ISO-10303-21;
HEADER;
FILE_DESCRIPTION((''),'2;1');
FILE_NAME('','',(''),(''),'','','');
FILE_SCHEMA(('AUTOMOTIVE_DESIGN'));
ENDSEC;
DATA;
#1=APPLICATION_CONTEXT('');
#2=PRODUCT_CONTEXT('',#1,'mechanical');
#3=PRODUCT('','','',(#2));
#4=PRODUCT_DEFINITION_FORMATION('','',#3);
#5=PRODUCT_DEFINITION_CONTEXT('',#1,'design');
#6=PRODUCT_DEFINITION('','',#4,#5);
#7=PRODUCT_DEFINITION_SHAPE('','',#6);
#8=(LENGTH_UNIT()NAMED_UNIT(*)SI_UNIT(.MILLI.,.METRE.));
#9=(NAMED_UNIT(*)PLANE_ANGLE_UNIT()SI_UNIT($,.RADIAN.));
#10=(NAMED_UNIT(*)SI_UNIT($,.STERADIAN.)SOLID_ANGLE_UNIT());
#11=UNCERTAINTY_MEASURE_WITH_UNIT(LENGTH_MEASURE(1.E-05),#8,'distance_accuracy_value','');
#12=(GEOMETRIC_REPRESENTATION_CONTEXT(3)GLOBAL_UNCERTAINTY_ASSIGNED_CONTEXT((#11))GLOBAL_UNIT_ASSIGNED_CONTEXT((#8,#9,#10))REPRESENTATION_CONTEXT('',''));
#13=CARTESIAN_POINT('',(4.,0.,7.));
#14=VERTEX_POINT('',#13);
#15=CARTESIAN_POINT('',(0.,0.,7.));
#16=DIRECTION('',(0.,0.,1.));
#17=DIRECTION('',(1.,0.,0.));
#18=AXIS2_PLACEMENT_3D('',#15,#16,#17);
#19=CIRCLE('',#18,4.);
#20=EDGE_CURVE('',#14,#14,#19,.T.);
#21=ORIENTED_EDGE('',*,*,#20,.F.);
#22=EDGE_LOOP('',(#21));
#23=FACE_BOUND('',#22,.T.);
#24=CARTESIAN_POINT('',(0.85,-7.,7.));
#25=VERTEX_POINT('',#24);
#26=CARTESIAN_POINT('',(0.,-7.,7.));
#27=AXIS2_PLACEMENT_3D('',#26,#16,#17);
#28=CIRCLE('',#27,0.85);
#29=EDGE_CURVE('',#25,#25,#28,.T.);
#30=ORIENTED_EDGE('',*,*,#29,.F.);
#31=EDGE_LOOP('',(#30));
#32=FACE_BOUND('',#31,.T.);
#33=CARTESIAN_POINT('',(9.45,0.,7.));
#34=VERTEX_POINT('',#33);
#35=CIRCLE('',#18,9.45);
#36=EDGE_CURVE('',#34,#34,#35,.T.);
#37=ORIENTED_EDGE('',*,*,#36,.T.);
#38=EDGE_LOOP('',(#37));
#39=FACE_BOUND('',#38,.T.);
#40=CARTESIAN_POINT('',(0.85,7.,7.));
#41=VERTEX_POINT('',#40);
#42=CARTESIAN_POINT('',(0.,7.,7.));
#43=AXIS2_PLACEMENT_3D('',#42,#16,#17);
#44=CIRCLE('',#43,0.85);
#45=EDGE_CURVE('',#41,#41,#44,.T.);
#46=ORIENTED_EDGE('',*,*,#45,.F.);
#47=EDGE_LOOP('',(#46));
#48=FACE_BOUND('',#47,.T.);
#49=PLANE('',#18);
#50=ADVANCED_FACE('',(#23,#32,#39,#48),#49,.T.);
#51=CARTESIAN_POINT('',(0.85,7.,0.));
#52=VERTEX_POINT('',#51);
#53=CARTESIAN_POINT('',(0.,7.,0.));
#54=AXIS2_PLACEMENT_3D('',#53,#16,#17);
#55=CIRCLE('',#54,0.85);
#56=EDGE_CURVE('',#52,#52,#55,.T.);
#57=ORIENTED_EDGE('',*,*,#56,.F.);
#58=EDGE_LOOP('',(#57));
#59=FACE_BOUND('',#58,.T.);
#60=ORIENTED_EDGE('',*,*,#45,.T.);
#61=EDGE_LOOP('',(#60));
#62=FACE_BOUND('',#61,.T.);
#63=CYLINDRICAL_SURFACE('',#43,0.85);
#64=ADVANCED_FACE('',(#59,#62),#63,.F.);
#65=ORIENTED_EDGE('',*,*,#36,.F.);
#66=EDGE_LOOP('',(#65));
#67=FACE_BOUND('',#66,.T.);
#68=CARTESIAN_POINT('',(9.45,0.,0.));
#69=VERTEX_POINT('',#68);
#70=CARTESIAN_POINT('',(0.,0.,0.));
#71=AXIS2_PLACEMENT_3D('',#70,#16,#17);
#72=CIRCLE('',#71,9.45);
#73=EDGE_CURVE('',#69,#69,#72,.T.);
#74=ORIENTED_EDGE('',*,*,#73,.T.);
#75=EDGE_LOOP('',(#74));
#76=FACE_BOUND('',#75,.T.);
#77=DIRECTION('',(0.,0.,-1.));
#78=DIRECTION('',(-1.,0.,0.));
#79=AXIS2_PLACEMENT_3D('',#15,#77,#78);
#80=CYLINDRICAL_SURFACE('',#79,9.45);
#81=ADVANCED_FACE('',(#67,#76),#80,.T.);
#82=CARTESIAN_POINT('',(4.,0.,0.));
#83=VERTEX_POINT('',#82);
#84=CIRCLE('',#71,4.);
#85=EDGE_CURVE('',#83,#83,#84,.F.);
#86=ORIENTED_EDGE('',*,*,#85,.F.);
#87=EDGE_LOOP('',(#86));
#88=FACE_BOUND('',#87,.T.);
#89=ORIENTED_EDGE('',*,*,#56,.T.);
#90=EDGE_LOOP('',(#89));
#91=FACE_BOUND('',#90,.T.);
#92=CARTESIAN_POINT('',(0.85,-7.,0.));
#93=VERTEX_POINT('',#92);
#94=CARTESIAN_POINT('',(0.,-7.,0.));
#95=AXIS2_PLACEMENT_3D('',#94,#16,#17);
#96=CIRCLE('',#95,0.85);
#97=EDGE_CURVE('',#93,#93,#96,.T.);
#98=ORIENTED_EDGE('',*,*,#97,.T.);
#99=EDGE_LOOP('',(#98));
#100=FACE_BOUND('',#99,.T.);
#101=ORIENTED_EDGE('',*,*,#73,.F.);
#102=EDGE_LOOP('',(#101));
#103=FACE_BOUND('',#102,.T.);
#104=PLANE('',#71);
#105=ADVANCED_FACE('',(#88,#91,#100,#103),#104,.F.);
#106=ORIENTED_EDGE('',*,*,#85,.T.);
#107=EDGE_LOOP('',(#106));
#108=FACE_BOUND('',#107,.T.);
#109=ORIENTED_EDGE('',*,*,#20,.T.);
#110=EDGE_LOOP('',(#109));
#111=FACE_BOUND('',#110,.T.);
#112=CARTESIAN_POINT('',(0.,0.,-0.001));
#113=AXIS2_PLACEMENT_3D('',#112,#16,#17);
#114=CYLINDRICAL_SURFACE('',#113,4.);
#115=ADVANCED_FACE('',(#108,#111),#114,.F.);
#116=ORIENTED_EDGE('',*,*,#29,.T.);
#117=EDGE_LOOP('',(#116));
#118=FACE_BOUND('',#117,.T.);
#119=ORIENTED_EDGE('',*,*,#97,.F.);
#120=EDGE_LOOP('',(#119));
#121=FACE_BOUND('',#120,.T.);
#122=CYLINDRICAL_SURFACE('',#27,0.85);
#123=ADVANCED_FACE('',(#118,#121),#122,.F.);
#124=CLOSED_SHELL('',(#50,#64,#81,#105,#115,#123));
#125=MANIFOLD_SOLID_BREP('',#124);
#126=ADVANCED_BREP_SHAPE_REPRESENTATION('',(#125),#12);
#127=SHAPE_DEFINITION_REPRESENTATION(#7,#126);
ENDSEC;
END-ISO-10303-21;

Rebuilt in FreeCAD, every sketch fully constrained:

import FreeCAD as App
import Part
import Sketcher

V = App.Vector
Q = App.Units.Quantity

doc = App.newDocument("Part")
body = doc.addObject("PartDesign::Body", "Body")

sketch1 = body.newObject("Sketcher::SketchObject", "Sketch")
sketch1.AttachmentSupport = (doc.getObject("XY_Plane"), [""])
sketch1.MapMode = "FlatFace"
sketch1.addGeometry(Part.Circle(V(0, 0, 0), V(0, 0, 1), 9.45), False)
sketch1.addConstraint(Sketcher.Constraint("Coincident", 0, 3, -1, 1))
sketch1.addConstraint(Sketcher.Constraint("Diameter", 0, Q("18.9 mm")))
pad1 = body.newObject("PartDesign::Pad", "Pad")
pad1.Profile = sketch1
pad1.Length = 7

sketch2 = body.newObject("Sketcher::SketchObject", "Sketch001")
sketch2.AttachmentSupport = (doc.getObject("XY_Plane"), [""])
sketch2.MapMode = "FlatFace"
sketch2.AttachmentOffset = App.Placement(V(0, 0, 7), App.Rotation())
sketch2.addGeometry(Part.Circle(V(0, 0, 0), V(0, 0, 1), 4), False)
sketch2.addConstraint(Sketcher.Constraint("Coincident", 0, 3, -1, 1))
sketch2.addConstraint(Sketcher.Constraint("Diameter", 0, Q("8 mm")))
pocket1 = body.newObject("PartDesign::Pocket", "Pocket")
pocket1.Profile = sketch2
pocket1.Type = "UpToFirst"

sketch3 = body.newObject("Sketcher::SketchObject", "Sketch002")
sketch3.AttachmentSupport = (doc.getObject("XY_Plane"), [""])
sketch3.MapMode = "FlatFace"
sketch3.AttachmentOffset = App.Placement(V(0, 0, 7), App.Rotation())
sketch3.addGeometry(Part.Circle(V(0, 7, 0), V(0, 0, 1), 0.85), False)
sketch3.addGeometry(Part.Circle(V(0, -7, 0), V(0, 0, 1), 0.85), False)
sketch3.addConstraint(Sketcher.Constraint("Equal", 0, 1))
sketch3.addConstraint(Sketcher.Constraint("Symmetric", 0, 3, 1, 3, -1, 1))
sketch3.addConstraint(Sketcher.Constraint("PointOnObject", 0, 3, -2))
sketch3.addConstraint(Sketcher.Constraint("Diameter", 0, Q("1.7 mm")))
sketch3.addConstraint(Sketcher.Constraint("DistanceY", -1, 1, 0, 3, Q("7 mm")))
doc.recompute()
hole = body.newObject("PartDesign::Hole", "Hole")
hole.Profile = sketch3
hole.ThreadType = "None"
hole.Diameter = 1.7
hole.DepthType = "ThroughAll"

doc.recompute()
